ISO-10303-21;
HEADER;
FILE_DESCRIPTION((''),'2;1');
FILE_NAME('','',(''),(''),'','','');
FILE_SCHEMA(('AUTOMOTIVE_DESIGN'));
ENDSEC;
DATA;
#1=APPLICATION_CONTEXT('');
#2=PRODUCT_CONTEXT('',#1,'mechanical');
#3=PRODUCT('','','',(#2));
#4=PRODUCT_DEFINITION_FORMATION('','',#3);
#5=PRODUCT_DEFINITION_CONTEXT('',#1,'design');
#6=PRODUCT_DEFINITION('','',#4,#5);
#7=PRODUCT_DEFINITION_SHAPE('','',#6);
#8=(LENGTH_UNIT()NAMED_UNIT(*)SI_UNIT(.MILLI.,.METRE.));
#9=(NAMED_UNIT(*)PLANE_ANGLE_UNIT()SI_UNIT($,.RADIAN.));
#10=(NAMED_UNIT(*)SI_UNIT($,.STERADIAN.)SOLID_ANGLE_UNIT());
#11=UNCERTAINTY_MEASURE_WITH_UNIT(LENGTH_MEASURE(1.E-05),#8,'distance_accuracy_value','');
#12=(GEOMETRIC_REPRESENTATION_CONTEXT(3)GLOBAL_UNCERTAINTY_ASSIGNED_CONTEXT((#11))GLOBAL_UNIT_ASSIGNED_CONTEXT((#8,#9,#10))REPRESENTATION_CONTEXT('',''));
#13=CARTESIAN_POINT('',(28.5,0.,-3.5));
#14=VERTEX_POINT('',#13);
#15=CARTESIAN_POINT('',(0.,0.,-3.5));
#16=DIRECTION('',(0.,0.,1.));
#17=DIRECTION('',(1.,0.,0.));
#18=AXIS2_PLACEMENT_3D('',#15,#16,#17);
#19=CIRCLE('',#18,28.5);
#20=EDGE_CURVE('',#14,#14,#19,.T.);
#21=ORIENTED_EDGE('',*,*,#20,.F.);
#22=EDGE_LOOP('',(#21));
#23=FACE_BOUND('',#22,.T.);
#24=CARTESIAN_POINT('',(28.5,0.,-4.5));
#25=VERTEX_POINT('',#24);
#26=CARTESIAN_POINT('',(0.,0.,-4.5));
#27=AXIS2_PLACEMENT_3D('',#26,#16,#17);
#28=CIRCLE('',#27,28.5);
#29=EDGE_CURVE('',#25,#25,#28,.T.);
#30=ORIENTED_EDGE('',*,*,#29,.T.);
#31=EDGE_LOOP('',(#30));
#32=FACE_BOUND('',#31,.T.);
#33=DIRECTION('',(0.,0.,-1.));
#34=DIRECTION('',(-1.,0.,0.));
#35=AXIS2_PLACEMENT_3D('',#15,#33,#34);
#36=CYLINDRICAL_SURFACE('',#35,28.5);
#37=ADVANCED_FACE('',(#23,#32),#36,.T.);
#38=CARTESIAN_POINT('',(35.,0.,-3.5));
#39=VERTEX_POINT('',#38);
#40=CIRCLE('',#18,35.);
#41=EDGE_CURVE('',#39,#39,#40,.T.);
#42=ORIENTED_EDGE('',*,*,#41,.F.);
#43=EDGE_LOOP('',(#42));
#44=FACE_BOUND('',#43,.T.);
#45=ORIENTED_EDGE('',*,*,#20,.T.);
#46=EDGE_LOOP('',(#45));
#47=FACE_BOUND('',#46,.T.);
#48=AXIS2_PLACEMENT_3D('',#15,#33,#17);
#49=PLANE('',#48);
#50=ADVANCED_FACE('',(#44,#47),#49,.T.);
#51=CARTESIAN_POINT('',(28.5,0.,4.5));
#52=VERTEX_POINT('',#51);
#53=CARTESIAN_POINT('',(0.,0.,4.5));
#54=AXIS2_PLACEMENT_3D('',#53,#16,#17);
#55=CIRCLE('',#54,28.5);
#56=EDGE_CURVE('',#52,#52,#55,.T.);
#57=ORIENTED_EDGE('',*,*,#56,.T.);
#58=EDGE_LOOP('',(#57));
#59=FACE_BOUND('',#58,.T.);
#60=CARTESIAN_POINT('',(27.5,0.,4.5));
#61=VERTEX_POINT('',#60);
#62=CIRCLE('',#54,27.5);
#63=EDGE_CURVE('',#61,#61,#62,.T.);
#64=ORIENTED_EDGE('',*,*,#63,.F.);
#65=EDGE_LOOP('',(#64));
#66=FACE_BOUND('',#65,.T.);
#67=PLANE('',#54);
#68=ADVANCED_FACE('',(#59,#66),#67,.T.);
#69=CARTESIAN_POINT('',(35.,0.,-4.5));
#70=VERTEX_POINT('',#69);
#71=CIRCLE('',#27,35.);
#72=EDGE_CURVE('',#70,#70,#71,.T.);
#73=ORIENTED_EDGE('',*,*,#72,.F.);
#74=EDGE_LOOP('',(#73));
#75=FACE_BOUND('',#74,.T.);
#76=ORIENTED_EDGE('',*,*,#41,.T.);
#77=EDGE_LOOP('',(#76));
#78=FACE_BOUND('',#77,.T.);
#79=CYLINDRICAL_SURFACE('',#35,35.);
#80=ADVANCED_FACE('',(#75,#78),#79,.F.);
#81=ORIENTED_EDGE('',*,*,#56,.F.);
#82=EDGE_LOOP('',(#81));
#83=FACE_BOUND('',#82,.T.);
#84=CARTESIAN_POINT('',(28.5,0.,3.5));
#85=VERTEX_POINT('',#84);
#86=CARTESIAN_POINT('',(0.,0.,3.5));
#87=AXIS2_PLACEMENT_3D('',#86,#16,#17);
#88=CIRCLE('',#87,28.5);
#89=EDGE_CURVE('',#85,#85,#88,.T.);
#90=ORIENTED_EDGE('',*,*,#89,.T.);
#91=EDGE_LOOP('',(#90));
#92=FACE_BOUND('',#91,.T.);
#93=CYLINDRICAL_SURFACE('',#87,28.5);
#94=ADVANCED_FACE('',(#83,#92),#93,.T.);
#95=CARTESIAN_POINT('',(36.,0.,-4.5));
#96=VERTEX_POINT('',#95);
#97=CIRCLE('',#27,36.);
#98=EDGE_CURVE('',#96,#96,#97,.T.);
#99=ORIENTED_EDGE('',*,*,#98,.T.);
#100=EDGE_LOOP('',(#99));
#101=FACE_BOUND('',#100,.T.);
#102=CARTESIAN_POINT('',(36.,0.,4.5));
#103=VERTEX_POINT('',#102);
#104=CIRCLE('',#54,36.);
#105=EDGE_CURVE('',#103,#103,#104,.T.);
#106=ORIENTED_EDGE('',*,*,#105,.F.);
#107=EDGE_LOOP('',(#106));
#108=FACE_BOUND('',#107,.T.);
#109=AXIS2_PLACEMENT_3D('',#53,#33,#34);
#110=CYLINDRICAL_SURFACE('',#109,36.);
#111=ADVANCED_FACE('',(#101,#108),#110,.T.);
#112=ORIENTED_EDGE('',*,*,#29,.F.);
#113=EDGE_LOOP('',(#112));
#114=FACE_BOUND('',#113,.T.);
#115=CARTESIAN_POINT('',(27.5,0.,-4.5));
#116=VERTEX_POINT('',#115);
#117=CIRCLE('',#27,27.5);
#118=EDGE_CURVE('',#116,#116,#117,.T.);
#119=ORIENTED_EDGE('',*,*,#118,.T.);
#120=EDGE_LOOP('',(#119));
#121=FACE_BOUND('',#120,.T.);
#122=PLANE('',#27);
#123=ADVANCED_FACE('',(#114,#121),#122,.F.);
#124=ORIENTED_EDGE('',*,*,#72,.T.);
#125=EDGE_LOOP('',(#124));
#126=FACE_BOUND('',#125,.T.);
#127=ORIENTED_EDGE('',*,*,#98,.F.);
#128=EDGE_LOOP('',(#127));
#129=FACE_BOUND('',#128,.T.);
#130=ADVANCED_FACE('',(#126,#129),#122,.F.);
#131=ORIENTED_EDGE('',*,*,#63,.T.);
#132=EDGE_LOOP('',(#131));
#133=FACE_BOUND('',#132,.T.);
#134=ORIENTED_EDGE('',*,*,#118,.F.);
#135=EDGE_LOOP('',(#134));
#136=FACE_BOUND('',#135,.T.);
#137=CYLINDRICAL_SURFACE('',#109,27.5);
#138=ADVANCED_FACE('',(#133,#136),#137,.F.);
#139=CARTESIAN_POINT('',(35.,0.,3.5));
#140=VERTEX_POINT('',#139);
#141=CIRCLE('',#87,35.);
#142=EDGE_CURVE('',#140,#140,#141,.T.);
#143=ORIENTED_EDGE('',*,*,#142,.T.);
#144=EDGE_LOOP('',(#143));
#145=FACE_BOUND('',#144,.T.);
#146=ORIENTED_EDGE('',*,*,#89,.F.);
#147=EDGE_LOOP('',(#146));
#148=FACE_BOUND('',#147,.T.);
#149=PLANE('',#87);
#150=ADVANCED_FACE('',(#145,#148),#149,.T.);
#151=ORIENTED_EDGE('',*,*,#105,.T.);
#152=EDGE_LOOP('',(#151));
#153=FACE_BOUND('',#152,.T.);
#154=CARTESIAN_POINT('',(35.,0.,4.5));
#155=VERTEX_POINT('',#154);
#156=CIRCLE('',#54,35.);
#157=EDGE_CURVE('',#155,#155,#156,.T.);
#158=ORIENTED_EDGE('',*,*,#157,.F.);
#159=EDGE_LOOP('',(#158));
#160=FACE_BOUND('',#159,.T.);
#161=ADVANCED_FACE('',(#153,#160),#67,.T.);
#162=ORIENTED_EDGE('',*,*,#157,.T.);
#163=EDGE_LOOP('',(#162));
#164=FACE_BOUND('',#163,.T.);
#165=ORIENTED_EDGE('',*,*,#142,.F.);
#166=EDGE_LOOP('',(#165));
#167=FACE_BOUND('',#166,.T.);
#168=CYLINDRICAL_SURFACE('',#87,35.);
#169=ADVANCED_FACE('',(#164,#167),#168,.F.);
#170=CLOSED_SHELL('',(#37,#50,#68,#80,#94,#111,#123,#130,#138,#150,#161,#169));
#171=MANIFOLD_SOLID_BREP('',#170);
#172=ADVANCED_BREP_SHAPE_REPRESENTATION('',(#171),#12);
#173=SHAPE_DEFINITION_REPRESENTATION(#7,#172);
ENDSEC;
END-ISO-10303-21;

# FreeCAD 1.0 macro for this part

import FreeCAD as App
import Part
import Sketcher
from FreeCAD import Vector
Q = App.Units.Quantity

doc = App.newDocument("Part")
body = doc.addObject("PartDesign::Body", "Body")

# Sketch on XY plane
sketch1 = body.newObject("Sketcher::SketchObject", "Sketch")
sketch1.AttachmentSupport = (doc.getObject("XY_Plane"), [""])
sketch1.MapMode = "FlatFace"
sketch1.addGeometry([
    Part.Circle(Vector(0, 0, 0), Vector(0, 0, 1), 36),
    Part.Circle(Vector(0, 0, 0), Vector(0, 0, 1), 27.5),
], False)
sketch1.addConstraint([
    Sketcher.Constraint("Coincident", 0, 3, -1, 1),
    Sketcher.Constraint("Coincident", 1, 3, -1, 1),
    Sketcher.Constraint("Diameter", 0, Q("72 mm")),
    Sketcher.Constraint("Diameter", 1, Q("55 mm")),
])
pad1 = body.newObject("PartDesign::Pad", "Pad")
pad1.Profile = sketch1
pad1.Length = 9
pad1.Midplane = True

# Sketch on XY plane
sketch2 = body.newObject("Sketcher::SketchObject", "Sketch001")
sketch2.AttachmentSupport = (doc.getObject("XY_Plane"), [""])
sketch2.MapMode = "FlatFace"
sketch2.AttachmentOffset = App.Placement(Vector(0, 0, 4.5), App.Rotation())
sketch2.addGeometry([
    Part.Circle(Vector(0, 0, 0), Vector(0, 0, 1), 35),
    Part.Circle(Vector(0, 0, 0), Vector(0, 0, 1), 28.5),
], False)
sketch2.addConstraint([
    Sketcher.Constraint("Coincident", 0, 3, -1, 1),
    Sketcher.Constraint("Coincident", 1, 3, -1, 1),
    Sketcher.Constraint("Diameter", 0, Q("70 mm")),
    Sketcher.Constraint("Diameter", 1, Q("57 mm")),
])
pocket1 = body.newObject("PartDesign::Pocket", "Pocket")
pocket1.Profile = sketch2
pocket1.Length = 1
doc.recompute()

mirrored = body.newObject("PartDesign::Mirrored", "Mirrored")
mirrored.Originals = [pocket1]
mirrored.MirrorPlane = (doc.getObject("XY_Plane"), [""])
body.Tip = mirrored

doc.recompute()
